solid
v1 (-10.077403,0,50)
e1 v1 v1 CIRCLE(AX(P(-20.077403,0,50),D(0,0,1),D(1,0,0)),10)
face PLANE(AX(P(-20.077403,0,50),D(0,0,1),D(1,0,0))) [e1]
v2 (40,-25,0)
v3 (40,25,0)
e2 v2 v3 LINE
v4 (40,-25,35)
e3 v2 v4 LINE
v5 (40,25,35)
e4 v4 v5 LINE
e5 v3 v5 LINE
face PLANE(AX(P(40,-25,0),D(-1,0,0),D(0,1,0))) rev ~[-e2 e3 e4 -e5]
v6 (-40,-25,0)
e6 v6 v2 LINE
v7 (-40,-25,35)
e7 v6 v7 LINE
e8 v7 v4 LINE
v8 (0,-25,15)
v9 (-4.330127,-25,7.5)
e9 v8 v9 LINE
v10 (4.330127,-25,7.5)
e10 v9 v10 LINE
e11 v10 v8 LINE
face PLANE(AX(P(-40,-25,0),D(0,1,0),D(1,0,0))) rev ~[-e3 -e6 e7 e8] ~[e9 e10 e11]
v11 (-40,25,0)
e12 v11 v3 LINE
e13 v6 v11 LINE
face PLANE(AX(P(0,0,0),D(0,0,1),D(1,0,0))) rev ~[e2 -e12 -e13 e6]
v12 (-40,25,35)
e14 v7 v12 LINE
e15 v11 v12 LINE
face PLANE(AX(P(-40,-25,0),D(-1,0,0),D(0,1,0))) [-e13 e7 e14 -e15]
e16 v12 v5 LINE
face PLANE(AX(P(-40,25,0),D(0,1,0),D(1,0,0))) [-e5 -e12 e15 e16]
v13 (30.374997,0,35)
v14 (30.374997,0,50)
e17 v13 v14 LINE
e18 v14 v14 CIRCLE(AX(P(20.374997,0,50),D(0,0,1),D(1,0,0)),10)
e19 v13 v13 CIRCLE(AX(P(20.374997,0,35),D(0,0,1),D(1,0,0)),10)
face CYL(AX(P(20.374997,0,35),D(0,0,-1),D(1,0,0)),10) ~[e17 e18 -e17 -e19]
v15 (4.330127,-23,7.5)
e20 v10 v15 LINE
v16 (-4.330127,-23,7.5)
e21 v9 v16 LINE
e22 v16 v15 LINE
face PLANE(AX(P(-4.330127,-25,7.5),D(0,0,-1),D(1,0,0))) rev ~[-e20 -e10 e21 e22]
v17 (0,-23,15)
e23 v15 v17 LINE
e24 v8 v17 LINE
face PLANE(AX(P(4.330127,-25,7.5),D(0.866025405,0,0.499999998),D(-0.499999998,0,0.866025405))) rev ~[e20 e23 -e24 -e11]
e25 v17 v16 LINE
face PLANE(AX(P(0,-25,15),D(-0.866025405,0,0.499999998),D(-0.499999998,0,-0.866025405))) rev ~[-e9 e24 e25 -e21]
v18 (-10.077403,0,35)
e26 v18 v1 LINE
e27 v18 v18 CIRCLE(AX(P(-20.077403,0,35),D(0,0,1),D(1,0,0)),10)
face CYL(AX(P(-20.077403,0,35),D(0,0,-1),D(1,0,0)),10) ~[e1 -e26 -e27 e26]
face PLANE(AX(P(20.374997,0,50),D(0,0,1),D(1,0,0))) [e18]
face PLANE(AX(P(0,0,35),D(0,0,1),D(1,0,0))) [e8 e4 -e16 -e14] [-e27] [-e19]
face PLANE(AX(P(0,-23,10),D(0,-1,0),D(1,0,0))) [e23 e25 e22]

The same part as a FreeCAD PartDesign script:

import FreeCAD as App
import Part
import Sketcher
Q = App.Units.Quantity

doc = App.newDocument("Part")
params = doc.addObject("Spreadsheet::Sheet", "Params")
for row, (alias, value) in enumerate([
    ("sketch1_width", "80 mm"),
    ("sketch1_height", "50 mm"),
    ("pad1_length", "35 mm"),
    ("pocket1_length", "2 mm"),
    ("sketch3_diameter", "20 mm"),
    ("pad2_length", "15 mm"),
], start=1):
    params.set(f"A{row}", alias)
    params.set(f"B{row}", "=" + value)
    params.setAlias(f"B{row}", alias)

body = doc.addObject("PartDesign::Body", "Body")

sketch1 = body.newObject("Sketcher::SketchObject", "Sketch")
sketch1.AttachmentSupport = (doc.getObject("XY_Plane"), [""])
sketch1.MapMode = "FlatFace"
sketch1.addGeometry([
    Part.LineSegment(App.Vector(-40, 25, 0), App.Vector(-40, -25, 0)),
    Part.LineSegment(App.Vector(-40, -25, 0), App.Vector(40, -25, 0)),
    Part.LineSegment(App.Vector(40, -25, 0), App.Vector(40, 25, 0)),
    Part.LineSegment(App.Vector(40, 25, 0), App.Vector(-40, 25, 0)),
], False)
sketch1.addConstraint([
    Sketcher.Constraint("Coincident", 0, 2, 1, 1),
    Sketcher.Constraint("Coincident", 1, 2, 2, 1),
    Sketcher.Constraint("Coincident", 2, 2, 3, 1),
    Sketcher.Constraint("Coincident", 3, 2, 0, 1),
    Sketcher.Constraint("Vertical", 0),
    Sketcher.Constraint("Horizontal", 1),
    Sketcher.Constraint("Vertical", 2),
    Sketcher.Constraint("Horizontal", 3),
    Sketcher.Constraint("Symmetric", 0, 2, 2, 2, -1, 1),
    Sketcher.Constraint("DistanceX", 1, 1, 1, 2, Q("80 mm")),
    Sketcher.Constraint("DistanceY", 0, 2, 0, 1, Q("50 mm")),
])
sketch1.setExpression("Constraints[9]", "Params.sketch1_width")
sketch1.setExpression("Constraints[10]", "Params.sketch1_height")
pad1 = body.newObject("PartDesign::Pad", "Pad")
pad1.Profile = sketch1
pad1.setExpression("Length", "Params.pad1_length")

sketch2 = body.newObject("Sketcher::SketchObject", "Sketch001")
sketch2.AttachmentSupport = (doc.getObject("XZ_Plane"), [""])
sketch2.MapMode = "FlatFace"
sketch2.AttachmentOffset = App.Placement(App.Vector(0, 0, 25), App.Rotation())
sketch2.addGeometry([
    Part.LineSegment(App.Vector(0, 15, 0), App.Vector(-4, 8, 0)),
    Part.LineSegment(App.Vector(-4, 8, 0), App.Vector(4, 8, 0)),
    Part.LineSegment(App.Vector(4, 8, 0), App.Vector(0, 15, 0)),
], False)
sketch2.addConstraint([
    Sketcher.Constraint("Coincident", 0, 2, 1, 1),
    Sketcher.Constraint("Coincident", 1, 2, 2, 1),
    Sketcher.Constraint("Coincident", 2, 2, 0, 1),
    Sketcher.Constraint("Horizontal", 1),
    Sketcher.Constraint("PointOnObject", 2, 2, -2),
    Sketcher.Constraint("Equal", 0, 2),
    Sketcher.Constraint("Angle", 0, Q("-120 deg")),
    Sketcher.Constraint("DistanceY", -1, 1, 2, 2, Q("15 mm")),
    Sketcher.Constraint("DistanceY", -1, 1, 0, 2, Q("7.5 mm")),
])
pocket1 = body.newObject("PartDesign::Pocket", "Pocket")
pocket1.Profile = sketch2
pocket1.setExpression("Length", "Params.pocket1_length")

sketch3 = body.newObject("Sketcher::SketchObject", "Sketch002")
sketch3.AttachmentSupport = (doc.getObject("XY_Plane"), [""])
sketch3.MapMode = "FlatFace"
sketch3.AttachmentOffset = App.Placement(App.Vector(0, 0, 35), App.Rotation())
sketch3.addGeometry([
    Part.Circle(App.Vector(-20, 0, 0), App.Vector(0, 0, 1), 10),
    Part.Circle(App.Vector(20, 0, 0), App.Vector(0, 0, 1), 10),
], False)
sketch3.addConstraint([
    Sketcher.Constraint("Equal", 0, 1),
    Sketcher.Constraint("PointOnObject", 0, 3, -1),
    Sketcher.Constraint("PointOnObject", 1, 3, -1),
    Sketcher.Constraint("Diameter", 0, Q("20 mm")),
    Sketcher.Constraint("DistanceX", 0, 3, 1, 3, Q("40.4524 mm")),
    Sketcher.Constraint("DistanceX", 0, 3, -1, 1, Q("20.077403 mm")),
])
sketch3.setExpression("Constraints[3]", "Params.sketch3_diameter")
pad2 = body.newObject("PartDesign::Pad", "Pad001")
pad2.Profile = sketch3
pad2.setExpression("Length", "Params.pad2_length")

doc.recompute()
